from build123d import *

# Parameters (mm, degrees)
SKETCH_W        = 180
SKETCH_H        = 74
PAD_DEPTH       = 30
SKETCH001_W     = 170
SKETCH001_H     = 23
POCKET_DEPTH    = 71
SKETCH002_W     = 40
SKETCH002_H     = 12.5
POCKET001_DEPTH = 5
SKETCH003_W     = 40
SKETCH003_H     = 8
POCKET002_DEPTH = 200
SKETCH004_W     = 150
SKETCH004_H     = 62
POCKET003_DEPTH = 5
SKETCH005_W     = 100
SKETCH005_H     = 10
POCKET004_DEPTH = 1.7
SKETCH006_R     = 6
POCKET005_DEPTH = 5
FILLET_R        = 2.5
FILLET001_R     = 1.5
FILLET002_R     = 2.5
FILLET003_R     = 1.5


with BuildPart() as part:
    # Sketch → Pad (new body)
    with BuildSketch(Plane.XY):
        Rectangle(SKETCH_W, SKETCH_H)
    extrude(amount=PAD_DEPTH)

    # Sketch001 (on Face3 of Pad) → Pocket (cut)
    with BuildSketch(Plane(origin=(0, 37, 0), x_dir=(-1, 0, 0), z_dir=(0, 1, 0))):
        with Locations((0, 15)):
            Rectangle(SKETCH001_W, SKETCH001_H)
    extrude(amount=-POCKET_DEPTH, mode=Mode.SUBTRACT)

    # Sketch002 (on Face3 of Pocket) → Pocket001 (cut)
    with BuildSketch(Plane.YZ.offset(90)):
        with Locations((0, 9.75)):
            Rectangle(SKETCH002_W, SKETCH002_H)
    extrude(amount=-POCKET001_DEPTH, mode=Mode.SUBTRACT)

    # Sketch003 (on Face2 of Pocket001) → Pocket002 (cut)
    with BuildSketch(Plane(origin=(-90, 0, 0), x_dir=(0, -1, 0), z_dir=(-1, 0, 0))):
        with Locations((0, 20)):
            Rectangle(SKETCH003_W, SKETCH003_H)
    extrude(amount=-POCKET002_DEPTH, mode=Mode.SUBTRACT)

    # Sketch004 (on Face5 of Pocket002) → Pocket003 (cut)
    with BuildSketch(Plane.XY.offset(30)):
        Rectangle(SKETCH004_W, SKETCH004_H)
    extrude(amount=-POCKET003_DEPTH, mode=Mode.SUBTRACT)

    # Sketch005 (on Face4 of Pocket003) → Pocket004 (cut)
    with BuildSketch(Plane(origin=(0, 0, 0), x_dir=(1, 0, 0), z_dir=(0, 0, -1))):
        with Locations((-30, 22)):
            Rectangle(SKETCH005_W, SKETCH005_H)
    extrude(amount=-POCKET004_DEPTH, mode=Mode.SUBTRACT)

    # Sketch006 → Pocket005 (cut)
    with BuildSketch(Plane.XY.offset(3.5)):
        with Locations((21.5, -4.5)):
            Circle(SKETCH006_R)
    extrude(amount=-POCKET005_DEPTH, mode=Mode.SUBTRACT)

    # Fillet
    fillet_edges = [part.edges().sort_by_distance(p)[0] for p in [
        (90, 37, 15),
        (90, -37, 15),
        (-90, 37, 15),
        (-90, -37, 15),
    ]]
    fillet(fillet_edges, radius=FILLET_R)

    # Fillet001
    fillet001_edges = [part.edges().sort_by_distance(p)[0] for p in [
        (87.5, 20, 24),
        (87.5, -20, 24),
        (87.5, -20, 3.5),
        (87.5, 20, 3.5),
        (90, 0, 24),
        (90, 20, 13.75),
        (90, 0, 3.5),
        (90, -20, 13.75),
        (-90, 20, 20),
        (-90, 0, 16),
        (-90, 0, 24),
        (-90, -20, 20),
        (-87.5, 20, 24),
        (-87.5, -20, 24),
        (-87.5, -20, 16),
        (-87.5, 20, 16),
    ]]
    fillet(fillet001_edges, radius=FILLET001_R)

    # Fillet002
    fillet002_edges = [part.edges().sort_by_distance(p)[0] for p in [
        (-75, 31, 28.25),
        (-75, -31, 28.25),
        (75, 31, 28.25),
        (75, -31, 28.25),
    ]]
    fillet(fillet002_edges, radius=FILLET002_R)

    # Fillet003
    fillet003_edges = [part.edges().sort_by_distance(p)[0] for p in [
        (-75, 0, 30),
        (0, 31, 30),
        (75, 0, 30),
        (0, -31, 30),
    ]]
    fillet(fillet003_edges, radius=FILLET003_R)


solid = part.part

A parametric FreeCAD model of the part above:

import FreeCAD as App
import Part
import Sketcher
from FreeCAD import Vector
Q = App.Units.Quantity


def edges_at(feature, points):
    """Names of the edges that pass closest to the given points."""
    edges = feature.Shape.Edges
    near = lambda p: min(range(len(edges)), key=lambda i: edges[i].distToShape(Part.Vertex(*p))[0])
    return sorted({f"Edge{near(p) + 1}" for p in points})

doc = App.newDocument("Part")
body = doc.addObject("PartDesign::Body", "Body")

sketch1 = doc.addObject("Sketcher::SketchObject", "Sketch")
body.addObject(sketch1)
sketch1.AttachmentSupport = (doc.XY_Plane, [""])
sketch1.MapMode = "FlatFace"
sketch1.addGeometry([
    Part.LineSegment(Vector(-90, 37, 0), Vector(-90, -37, 0)),
    Part.LineSegment(Vector(-90, -37, 0), Vector(90, -37, 0)),
    Part.LineSegment(Vector(90, -37, 0), Vector(90, 37, 0)),
    Part.LineSegment(Vector(90, 37, 0), Vector(-90, 37, 0)),
], False)
sketch1.addConstraint([
    Sketcher.Constraint("Coincident", 0, 2, 1, 1),
    Sketcher.Constraint("Coincident", 1, 2, 2, 1),
    Sketcher.Constraint("Coincident", 2, 2, 3, 1),
    Sketcher.Constraint("Coincident", 3, 2, 0, 1),
    Sketcher.Constraint("Vertical", 0),
    Sketcher.Constraint("Horizontal", 1),
    Sketcher.Constraint("Vertical", 2),
    Sketcher.Constraint("Horizontal", 3),
    Sketcher.Constraint("Symmetric", 0, 2, 2, 2, -1, 1),
    Sketcher.Constraint("DistanceX", 1, 1, 1, 2, Q("180 mm")),
    Sketcher.Constraint("DistanceY", 0, 2, 0, 1, Q("74 mm")),
])
pad1 = doc.addObject("PartDesign::Pad", "Pad")
body.addObject(pad1)
pad1.Profile = sketch1
pad1.Length = 30

sketch2 = doc.addObject("Sketcher::SketchObject", "Sketch001")
body.addObject(sketch2)
sketch2.AttachmentSupport = (doc.XZ_Plane, [""])
sketch2.MapMode = "FlatFace"
sketch2.AttachmentOffset = App.Placement(Vector(0, 0, -37), App.Rotation())
sketch2.addGeometry([
    Part.LineSegment(Vector(85, 26, 0), Vector(85, 4, 0)),
    Part.LineSegment(Vector(85, 4, 0), Vector(-85, 4, 0)),
    Part.LineSegment(Vector(-85, 4, 0), Vector(-85, 26, 0)),
    Part.LineSegment(Vector(-85, 26, 0), Vector(85, 26, 0)),
], False)
sketch2.addConstraint([
    Sketcher.Constraint("Coincident", 0, 2, 1, 1),
    Sketcher.Constraint("Coincident", 1, 2, 2, 1),
    Sketcher.Constraint("Coincident", 2, 2, 3, 1),
    Sketcher.Constraint("Coincident", 3, 2, 0, 1),
    Sketcher.Constraint("Vertical", 0),
    Sketcher.Constraint("Horizontal", 1),
    Sketcher.Constraint("Vertical", 2),
    Sketcher.Constraint("Horizontal", 3),
    Sketcher.Constraint("DistanceX", 1, 2, 1, 1, Q("170 mm")),
    Sketcher.Constraint("DistanceY", 0, 2, 0, 1, Q("23 mm")),
    Sketcher.Constraint("DistanceX", -1, 1, 0, 2, Q("85 mm")),
    Sketcher.Constraint("DistanceY", -1, 1, 0, 2, Q("3.5 mm")),
])
pocket1 = doc.addObject("PartDesign::Pocket", "Pocket")
body.addObject(pocket1)
pocket1.Profile = sketch2
pocket1.Length = 71
pocket1.Reversed = True

sketch3 = doc.addObject("Sketcher::SketchObject", "Sketch002")
body.addObject(sketch3)
sketch3.AttachmentSupport = (doc.YZ_Plane, [""])
sketch3.MapMode = "FlatFace"
sketch3.AttachmentOffset = App.Placement(Vector(0, 0, 90), App.Rotation())
sketch3.addGeometry([
    Part.LineSegment(Vector(-20, 16, 0), Vector(-20, 4, 0)),
    Part.LineSegment(Vector(-20, 4, 0), Vector(20, 4, 0)),
    Part.LineSegment(Vector(20, 4, 0), Vector(20, 16, 0)),
    Part.LineSegment(Vector(20, 16, 0), Vector(-20, 16, 0)),
], False)
sketch3.addConstraint([
    Sketcher.Constraint("Coincident", 0, 2, 1, 1),
    Sketcher.Constraint("Coincident", 1, 2, 2, 1),
    Sketcher.Constraint("Coincident", 2, 2, 3, 1),
    Sketcher.Constraint("Coincident", 3, 2, 0, 1),
    Sketcher.Constraint("Vertical", 0),
    Sketcher.Constraint("Horizontal", 1),
    Sketcher.Constraint("Vertical", 2),
    Sketcher.Constraint("Horizontal", 3),
    Sketcher.Constraint("DistanceX", 1, 1, 1, 2, Q("40 mm")),
    Sketcher.Constraint("DistanceY", 0, 2, 0, 1, Q("12.5 mm")),
    Sketcher.Constraint("DistanceX", 0, 2, -1, 1, Q("20 mm")),
    Sketcher.Constraint("DistanceY", -1, 1, 2, 2, Q("16 mm")),
])
pocket2 = doc.addObject("PartDesign::Pocket", "Pocket001")
body.addObject(pocket2)
pocket2.Profile = sketch3
pocket2.Length = 5

sketch4 = doc.addObject("Sketcher::SketchObject", "Sketch003")
body.addObject(sketch4)
sketch4.AttachmentSupport = (doc.YZ_Plane, [""])
sketch4.MapMode = "FlatFace"
sketch4.AttachmentOffset = App.Placement(Vector(0, 0, -90), App.Rotation())
sketch4.addGeometry([
    Part.LineSegment(Vector(20, 24, 0), Vector(20, 16, 0)),
    Part.LineSegment(Vector(20, 16, 0), Vector(-20, 16, 0)),
    Part.LineSegment(Vector(-20, 16, 0), Vector(-20, 24, 0)),
    Part.LineSegment(Vector(-20, 24, 0), Vector(20, 24, 0)),
], False)
sketch4.addConstraint([
    Sketcher.Constraint("Coincident", 0, 2, 1, 1),
    Sketcher.Constraint("Coincident", 1, 2, 2, 1),
    Sketcher.Constraint("Coincident", 2, 2, 3, 1),
    Sketcher.Constraint("Coincident", 3, 2, 0, 1),
    Sketcher.Constraint("Vertical", 0),
    Sketcher.Constraint("Horizontal", 1),
    Sketcher.Constraint("Vertical", 2),
    Sketcher.Constraint("Horizontal", 3),
    Sketcher.Constraint("DistanceX", 1, 2, 1, 1, Q("40 mm")),
    Sketcher.Constraint("DistanceY", 0, 2, 0, 1, Q("8 mm")),
    Sketcher.Constraint("DistanceX", -1, 1, 0, 2, Q("20 mm")),
    Sketcher.Constraint("DistanceY", -1, 1, 0, 2, Q("16 mm")),
])
pocket3 = doc.addObject("PartDesign::Pocket", "Pocket002")
body.addObject(pocket3)
pocket3.Profile = sketch4
pocket3.Length = 200
pocket3.Reversed = True

sketch5 = doc.addObject("Sketcher::SketchObject", "Sketch004")
body.addObject(sketch5)
sketch5.AttachmentSupport = (doc.XY_Plane, [""])
sketch5.MapMode = "FlatFace"
sketch5.AttachmentOffset = App.Placement(Vector(0, 0, 30), App.Rotation())
sketch5.addGeometry([
    Part.LineSegment(Vector(-75, 31, 0), Vector(-75, -31, 0)),
    Part.LineSegment(Vector(-75, -31, 0), Vector(75, -31, 0)),
    Part.LineSegment(Vector(75, -31, 0), Vector(75, 31, 0)),
    Part.LineSegment(Vector(75, 31, 0), Vector(-75, 31, 0)),
], False)
sketch5.addConstraint([
    Sketcher.Constraint("Coincident", 0, 2, 1, 1),
    Sketcher.Constraint("Coincident", 1, 2, 2, 1),
    Sketcher.Constraint("Coincident", 2, 2, 3, 1),
    Sketcher.Constraint("Coincident", 3, 2, 0, 1),
    Sketcher.Constraint("Vertical", 0),
    Sketcher.Constraint("Horizontal", 1),
    Sketcher.Constraint("Vertical", 2),
    Sketcher.Constraint("Horizontal", 3),
    Sketcher.Constraint("Symmetric", 0, 2, 2, 2, -1, 1),
    Sketcher.Constraint("DistanceX", 1, 1, 1, 2, Q("150 mm")),
    Sketcher.Constraint("DistanceY", 0, 2, 0, 1, Q("62 mm")),
])
pocket4 = doc.addObject("PartDesign::Pocket", "Pocket003")
body.addObject(pocket4)
pocket4.Profile = sketch5
pocket4.Length = 5

sketch6 = doc.addObject("Sketcher::SketchObject", "Sketch005")
body.addObject(sketch6)
sketch6.AttachmentSupport = (doc.XY_Plane, [""])
sketch6.MapMode = "FlatFace"
sketch6.addGeometry([
    Part.LineSegment(Vector(-80, -27, 0), Vector(-80, -17, 0)),
    Part.LineSegment(Vector(-80, -17, 0), Vector(20, -17, 0)),
    Part.LineSegment(Vector(20, -17, 0), Vector(20, -27, 0)),
    Part.LineSegment(Vector(20, -27, 0), Vector(-80, -27, 0)),
], False)
sketch6.addConstraint([
    Sketcher.Constraint("Coincident", 0, 2, 1, 1),
    Sketcher.Constraint("Coincident", 1, 2, 2, 1),
    Sketcher.Constraint("Coincident", 2, 2, 3, 1),
    Sketcher.Constraint("Coincident", 3, 2, 0, 1),
    Sketcher.Constraint("Vertical", 0),
    Sketcher.Constraint("Horizontal", 1),
    Sketcher.Constraint("Vertical", 2),
    Sketcher.Constraint("Horizontal", 3),
    Sketcher.Constraint("DistanceX", 1, 1, 1, 2, Q("100 mm")),
    Sketcher.Constraint("DistanceY", 0, 1, 0, 2, Q("10 mm")),
    Sketcher.Constraint("DistanceX", 0, 2, -1, 1, Q("80 mm")),
    Sketcher.Constraint("DistanceY", 0, 2, -1, 1, Q("17 mm")),
])
pocket5 = doc.addObject("PartDesign::Pocket", "Pocket004")
body.addObject(pocket5)
pocket5.Profile = sketch6
pocket5.Length = 1.7
pocket5.Reversed = True

sketch7 = doc.addObject("Sketcher::SketchObject", "Sketch006")
body.addObject(sketch7)
sketch7.AttachmentSupport = (doc.XY_Plane, [""])
sketch7.MapMode = "FlatFace"
sketch7.AttachmentOffset = App.Placement(Vector(0, 0, 3.5), App.Rotation())
sketch7.addGeometry(Part.Circle(Vector(22, -4, 0), Vector(0, 0, 1), 6), False)
sketch7.addConstraint([
    Sketcher.Constraint("Diameter", 0, Q("12 mm")),
    Sketcher.Constraint("DistanceX", -1, 1, 0, 3, Q("21.5 mm")),
    Sketcher.Constraint("DistanceY", 0, 3, -1, 1, Q("4.5 mm")),
])
pocket6 = doc.addObject("PartDesign::Pocket", "Pocket005")
body.addObject(pocket6)
pocket6.Profile = sketch7
pocket6.Length = 5
doc.recompute()

fillet = doc.addObject("PartDesign::Fillet", "Fillet")
body.addObject(fillet)
fillet.Base = (pocket6, edges_at(pocket6, [
    (90, 37, 15),
    (90, -37, 15),
    (-90, 37, 15),
    (-90, -37, 15),
]))
fillet.Radius = 2.5
doc.recompute()

fillet2 = doc.addObject("PartDesign::Fillet", "Fillet001")
body.addObject(fillet2)
fillet2.Base = (fillet, edges_at(fillet, [
    (87.5, 20, 24),
    (87.5, -20, 24),
    (87.5, -20, 3.5),
    (87.5, 20, 3.5),
    (90, 0, 24),
    (90, 20, 13.75),
    (90, 0, 3.5),
    (90, -20, 13.75),
    (-90, 20, 20),
    (-90, 0, 16),
    (-90, 0, 24),
    (-90, -20, 20),
    (-87.5, 20, 24),
    (-87.5, -20, 24),
    (-87.5, -20, 16),
    (-87.5, 20, 16),
]))
fillet2.Radius = 1.5
doc.recompute()

fillet3 = doc.addObject("PartDesign::Fillet", "Fillet002")
body.addObject(fillet3)
fillet3.Base = (fillet2, edges_at(fillet2, [
    (-75, 31, 28.25),
    (-75, -31, 28.25),
    (75, 31, 28.25),
    (75, -31, 28.25),
]))
fillet3.Radius = 2.5
doc.recompute()

fillet4 = doc.addObject("PartDesign::Fillet", "Fillet003")
body.addObject(fillet4)
fillet4.Base = (fillet3, edges_at(fillet3, [
    (-75, 0, 30),
    (0, 31, 30),
    (75, 0, 30),
    (0, -31, 30),
]))
fillet4.Radius = 1.5

doc.recompute()
